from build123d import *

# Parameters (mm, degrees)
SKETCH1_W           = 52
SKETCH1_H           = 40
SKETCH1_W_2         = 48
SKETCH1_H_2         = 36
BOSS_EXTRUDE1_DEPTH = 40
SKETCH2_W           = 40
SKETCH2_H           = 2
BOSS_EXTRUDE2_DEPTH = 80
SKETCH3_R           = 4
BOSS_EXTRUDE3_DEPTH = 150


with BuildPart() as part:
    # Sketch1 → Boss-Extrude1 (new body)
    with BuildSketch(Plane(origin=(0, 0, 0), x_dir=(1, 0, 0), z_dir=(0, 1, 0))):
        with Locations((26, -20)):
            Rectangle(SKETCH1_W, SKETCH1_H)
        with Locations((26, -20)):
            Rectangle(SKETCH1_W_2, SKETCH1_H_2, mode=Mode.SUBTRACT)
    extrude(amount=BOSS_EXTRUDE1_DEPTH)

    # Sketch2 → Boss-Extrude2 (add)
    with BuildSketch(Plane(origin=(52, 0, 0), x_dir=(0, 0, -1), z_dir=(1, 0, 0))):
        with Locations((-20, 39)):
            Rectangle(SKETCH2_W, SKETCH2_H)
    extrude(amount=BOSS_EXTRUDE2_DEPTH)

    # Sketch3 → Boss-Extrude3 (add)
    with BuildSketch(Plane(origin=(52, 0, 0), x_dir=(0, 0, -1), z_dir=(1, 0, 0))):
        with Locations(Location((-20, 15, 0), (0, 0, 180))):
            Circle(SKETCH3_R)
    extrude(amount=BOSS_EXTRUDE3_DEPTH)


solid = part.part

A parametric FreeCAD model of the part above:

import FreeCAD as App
import Part
import Sketcher

V = App.Vector
Q = App.Units.Quantity


def add_polygon(sketch, points):
    """Adds a closed chain of lines whose ends are joined by coincident constraints."""
    first, n = sketch.GeometryCount, len(points)
    for a, b in zip(points, points[1:] + points[:1]):
        sketch.addGeometry(Part.LineSegment(App.Vector(*a, 0), App.Vector(*b, 0)), False)
    for i in range(n):
        sketch.addConstraint(Sketcher.Constraint("Coincident", first + i, 2, first + (i + 1) % n, 1))

doc = App.newDocument("Part")
body = doc.addObject("PartDesign::Body", "Body")

# Sketch on XZ plane
sketch1 = body.newObject("Sketcher::SketchObject", "Sketch")
sketch1.AttachmentSupport = (doc.getObject("XZ_Plane"), [""])
sketch1.MapMode = "FlatFace"
add_polygon(sketch1, [(0, 0), (0, 40), (52, 40), (52, 0)])  # lines 0-3
add_polygon(sketch1, [(50, 38), (2, 38), (2, 2), (50, 2)])  # lines 4-7
sketch1.addConstraint(Sketcher.Constraint("Vertical", 0))
sketch1.addConstraint(Sketcher.Constraint("Horizontal", 1))
sketch1.addConstraint(Sketcher.Constraint("Vertical", 2))
sketch1.addConstraint(Sketcher.Constraint("Horizontal", 3))
sketch1.addConstraint(Sketcher.Constraint("Horizontal", 4))
sketch1.addConstraint(Sketcher.Constraint("Vertical", 5))
sketch1.addConstraint(Sketcher.Constraint("Horizontal", 6))
sketch1.addConstraint(Sketcher.Constraint("Vertical", 7))
sketch1.addConstraint(Sketcher.Constraint("Coincident", 3, 2, -1, 1))
sketch1.addConstraint(Sketcher.Constraint("DistanceX", 1, 1, 1, 2, Q("52 mm")))
sketch1.addConstraint(Sketcher.Constraint("DistanceX", 4, 2, 4, 1, Q("48 mm")))
sketch1.addConstraint(Sketcher.Constraint("DistanceY", 0, 1, 0, 2, Q("40 mm")))
sketch1.addConstraint(Sketcher.Constraint("DistanceY", 5, 2, 5, 1, Q("36 mm")))
sketch1.addConstraint(Sketcher.Constraint("DistanceX", -1, 1, 4, 2, Q("2 mm")))
sketch1.addConstraint(Sketcher.Constraint("DistanceY", -1, 1, 4, 2, Q("38 mm")))
pad1 = body.newObject("PartDesign::Pad", "Pad")
pad1.Profile = sketch1
pad1.Length = 40
pad1.Reversed = True

# Sketch on YZ plane
sketch2 = body.newObject("Sketcher::SketchObject", "Sketch001")
sketch2.AttachmentSupport = (doc.getObject("YZ_Plane"), [""])
sketch2.MapMode = "FlatFace"
sketch2.AttachmentOffset = App.Placement(V(0, 0, 52), App.Rotation())
add_polygon(sketch2, [(40, 40), (38, 40), (38, 0), (40, 0)])  # lines 0-3
sketch2.addConstraint(Sketcher.Constraint("Horizontal", 0))
sketch2.addConstraint(Sketcher.Constraint("Vertical", 1))
sketch2.addConstraint(Sketcher.Constraint("Horizontal", 2))
sketch2.addConstraint(Sketcher.Constraint("Vertical", 3))
sketch2.addConstraint(Sketcher.Constraint("PointOnObject", 1, 2, -1))
sketch2.addConstraint(Sketcher.Constraint("DistanceX", 0, 2, 0, 1, Q("2 mm")))
sketch2.addConstraint(Sketcher.Constraint("DistanceY", 1, 2, 1, 1, Q("40 mm")))
sketch2.addConstraint(Sketcher.Constraint("DistanceX", -1, 1, 0, 2, Q("38 mm")))
pad2 = body.newObject("PartDesign::Pad", "Pad001")
pad2.Profile = sketch2
pad2.Length = 80

# Sketch on YZ plane
sketch3 = body.newObject("Sketcher::SketchObject", "Sketch002")
sketch3.AttachmentSupport = (doc.getObject("YZ_Plane"), [""])
sketch3.MapMode = "FlatFace"
sketch3.AttachmentOffset = App.Placement(V(0, 0, 52), App.Rotation())
sketch3.addGeometry(Part.Circle(V(15, 20, 0), V(0, 0, 1), 4), False)
sketch3.addConstraint(Sketcher.Constraint("Diameter", 0, Q("8 mm")))
sketch3.addConstraint(Sketcher.Constraint("DistanceX", -1, 1, 0, 3, Q("15 mm")))
sketch3.addConstraint(Sketcher.Constraint("DistanceY", -1, 1, 0, 3, Q("20 mm")))
pad3 = body.newObject("PartDesign::Pad", "Pad002")
pad3.Profile = sketch3
pad3.Length = 150

doc.recompute()
